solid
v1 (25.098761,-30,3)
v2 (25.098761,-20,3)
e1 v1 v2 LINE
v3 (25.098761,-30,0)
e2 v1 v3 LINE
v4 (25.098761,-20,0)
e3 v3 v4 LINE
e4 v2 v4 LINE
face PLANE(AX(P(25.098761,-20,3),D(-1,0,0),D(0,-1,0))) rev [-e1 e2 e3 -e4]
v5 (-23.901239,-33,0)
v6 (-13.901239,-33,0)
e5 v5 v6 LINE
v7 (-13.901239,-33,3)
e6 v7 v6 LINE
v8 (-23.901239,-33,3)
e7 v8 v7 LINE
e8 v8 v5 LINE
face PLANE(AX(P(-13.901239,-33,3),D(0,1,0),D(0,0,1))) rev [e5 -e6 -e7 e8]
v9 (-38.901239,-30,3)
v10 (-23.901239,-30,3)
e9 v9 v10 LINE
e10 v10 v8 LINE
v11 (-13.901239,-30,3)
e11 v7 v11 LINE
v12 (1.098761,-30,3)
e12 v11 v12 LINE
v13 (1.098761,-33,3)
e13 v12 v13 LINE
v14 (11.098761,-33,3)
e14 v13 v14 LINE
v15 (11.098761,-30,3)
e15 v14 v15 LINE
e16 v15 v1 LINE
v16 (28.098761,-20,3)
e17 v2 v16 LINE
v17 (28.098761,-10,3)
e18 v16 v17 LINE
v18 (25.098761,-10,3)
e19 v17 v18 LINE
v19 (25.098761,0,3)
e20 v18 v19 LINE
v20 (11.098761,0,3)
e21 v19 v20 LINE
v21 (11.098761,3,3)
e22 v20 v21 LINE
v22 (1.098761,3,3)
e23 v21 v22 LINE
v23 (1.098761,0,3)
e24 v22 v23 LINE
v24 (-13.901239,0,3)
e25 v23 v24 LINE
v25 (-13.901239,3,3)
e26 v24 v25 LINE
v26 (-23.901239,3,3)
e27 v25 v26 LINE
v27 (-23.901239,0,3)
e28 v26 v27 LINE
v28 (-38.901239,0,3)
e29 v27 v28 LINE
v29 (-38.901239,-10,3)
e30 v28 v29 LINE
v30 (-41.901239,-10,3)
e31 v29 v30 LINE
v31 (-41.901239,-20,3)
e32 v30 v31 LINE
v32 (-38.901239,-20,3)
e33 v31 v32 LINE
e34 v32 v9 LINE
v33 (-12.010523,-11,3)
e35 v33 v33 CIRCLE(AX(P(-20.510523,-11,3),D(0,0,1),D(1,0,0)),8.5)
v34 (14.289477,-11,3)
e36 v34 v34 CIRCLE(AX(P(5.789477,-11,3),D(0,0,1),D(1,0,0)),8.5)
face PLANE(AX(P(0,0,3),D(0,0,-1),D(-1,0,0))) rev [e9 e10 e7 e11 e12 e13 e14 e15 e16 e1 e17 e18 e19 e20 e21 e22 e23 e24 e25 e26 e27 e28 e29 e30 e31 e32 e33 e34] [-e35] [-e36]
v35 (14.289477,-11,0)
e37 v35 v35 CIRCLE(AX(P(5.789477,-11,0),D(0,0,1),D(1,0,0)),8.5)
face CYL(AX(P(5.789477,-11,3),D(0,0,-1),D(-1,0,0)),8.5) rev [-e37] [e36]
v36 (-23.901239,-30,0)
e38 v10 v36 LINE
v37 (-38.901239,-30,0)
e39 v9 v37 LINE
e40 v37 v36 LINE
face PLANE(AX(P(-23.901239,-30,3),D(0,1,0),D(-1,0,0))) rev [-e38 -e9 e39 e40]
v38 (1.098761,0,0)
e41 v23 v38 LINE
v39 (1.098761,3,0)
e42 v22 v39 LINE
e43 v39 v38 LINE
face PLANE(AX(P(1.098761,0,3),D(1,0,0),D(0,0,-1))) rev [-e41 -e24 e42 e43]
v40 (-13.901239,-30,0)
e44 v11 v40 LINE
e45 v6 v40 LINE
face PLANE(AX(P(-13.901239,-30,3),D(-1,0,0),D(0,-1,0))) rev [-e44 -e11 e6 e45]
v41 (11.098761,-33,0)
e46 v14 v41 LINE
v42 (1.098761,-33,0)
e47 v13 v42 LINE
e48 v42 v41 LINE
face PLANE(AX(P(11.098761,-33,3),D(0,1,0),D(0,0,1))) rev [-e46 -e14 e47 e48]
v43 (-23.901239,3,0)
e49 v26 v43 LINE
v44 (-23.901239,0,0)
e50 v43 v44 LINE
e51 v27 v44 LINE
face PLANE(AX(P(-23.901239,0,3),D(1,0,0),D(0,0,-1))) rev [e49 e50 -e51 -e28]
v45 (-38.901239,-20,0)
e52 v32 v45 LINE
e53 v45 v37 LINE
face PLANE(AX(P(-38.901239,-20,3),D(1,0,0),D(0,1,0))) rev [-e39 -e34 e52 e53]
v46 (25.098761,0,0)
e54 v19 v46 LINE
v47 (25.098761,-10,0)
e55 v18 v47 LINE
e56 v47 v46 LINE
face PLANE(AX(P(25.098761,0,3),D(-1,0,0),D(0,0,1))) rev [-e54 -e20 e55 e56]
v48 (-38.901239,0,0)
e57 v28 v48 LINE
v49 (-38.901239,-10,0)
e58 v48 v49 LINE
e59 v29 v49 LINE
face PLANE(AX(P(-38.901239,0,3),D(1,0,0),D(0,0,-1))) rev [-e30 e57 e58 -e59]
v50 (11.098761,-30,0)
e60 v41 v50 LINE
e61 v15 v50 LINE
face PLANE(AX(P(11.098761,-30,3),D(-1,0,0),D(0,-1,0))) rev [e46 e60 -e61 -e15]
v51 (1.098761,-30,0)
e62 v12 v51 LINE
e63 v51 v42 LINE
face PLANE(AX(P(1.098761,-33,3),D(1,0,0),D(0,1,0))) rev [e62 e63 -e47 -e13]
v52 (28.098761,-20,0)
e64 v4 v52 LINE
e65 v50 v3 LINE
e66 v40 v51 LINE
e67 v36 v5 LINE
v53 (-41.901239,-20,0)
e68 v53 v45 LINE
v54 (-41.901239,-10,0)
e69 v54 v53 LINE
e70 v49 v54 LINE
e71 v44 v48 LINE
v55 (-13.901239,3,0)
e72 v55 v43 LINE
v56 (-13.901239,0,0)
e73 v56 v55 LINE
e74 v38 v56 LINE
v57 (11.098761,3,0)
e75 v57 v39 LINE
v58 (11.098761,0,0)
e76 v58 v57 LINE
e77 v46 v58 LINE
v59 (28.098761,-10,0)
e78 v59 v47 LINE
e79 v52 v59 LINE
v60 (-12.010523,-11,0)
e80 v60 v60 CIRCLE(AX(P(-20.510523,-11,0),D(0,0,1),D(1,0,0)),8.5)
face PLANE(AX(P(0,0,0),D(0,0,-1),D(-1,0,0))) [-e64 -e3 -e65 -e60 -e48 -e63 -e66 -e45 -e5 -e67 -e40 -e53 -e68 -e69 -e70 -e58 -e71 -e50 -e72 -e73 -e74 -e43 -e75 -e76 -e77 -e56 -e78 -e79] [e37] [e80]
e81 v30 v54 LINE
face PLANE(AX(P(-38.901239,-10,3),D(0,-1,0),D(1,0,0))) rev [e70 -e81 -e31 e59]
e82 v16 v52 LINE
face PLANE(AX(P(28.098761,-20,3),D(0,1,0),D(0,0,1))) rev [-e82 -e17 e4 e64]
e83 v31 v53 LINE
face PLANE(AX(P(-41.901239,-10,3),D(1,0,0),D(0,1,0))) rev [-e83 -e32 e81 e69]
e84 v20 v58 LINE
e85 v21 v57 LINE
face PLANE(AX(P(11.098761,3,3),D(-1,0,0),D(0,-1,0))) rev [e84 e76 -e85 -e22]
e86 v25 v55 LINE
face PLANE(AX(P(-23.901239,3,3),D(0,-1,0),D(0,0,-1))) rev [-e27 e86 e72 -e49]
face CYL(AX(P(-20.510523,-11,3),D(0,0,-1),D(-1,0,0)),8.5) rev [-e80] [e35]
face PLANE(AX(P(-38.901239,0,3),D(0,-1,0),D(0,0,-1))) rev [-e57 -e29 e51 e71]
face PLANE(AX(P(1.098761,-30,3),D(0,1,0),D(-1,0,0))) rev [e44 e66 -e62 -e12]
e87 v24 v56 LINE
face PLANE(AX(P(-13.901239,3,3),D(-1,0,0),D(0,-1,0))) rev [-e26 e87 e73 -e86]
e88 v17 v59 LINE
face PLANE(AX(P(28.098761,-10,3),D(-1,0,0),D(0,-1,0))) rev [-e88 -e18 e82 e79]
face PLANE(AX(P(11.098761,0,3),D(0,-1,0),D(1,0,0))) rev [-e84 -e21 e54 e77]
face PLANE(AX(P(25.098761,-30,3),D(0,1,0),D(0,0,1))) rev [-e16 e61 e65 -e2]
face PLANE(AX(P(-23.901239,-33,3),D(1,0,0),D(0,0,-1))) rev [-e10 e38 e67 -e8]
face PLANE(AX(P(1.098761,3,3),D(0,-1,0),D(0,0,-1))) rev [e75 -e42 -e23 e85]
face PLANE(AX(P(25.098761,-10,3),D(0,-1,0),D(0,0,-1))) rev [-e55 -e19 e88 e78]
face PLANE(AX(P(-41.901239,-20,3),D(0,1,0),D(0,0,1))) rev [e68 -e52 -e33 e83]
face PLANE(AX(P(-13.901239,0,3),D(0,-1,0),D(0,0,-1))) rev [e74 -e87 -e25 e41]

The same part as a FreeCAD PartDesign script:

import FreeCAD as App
import Part
import Sketcher
Q = App.Units.Quantity


def add_polygon(sketch, points):
    """Adds a closed chain of lines whose ends are joined by coincident constraints."""
    first, n = sketch.GeometryCount, len(points)
    for a, b in zip(points, points[1:] + points[:1]):
        sketch.addGeometry(Part.LineSegment(App.Vector(*a, 0), App.Vector(*b, 0)), False)
    for i in range(n):
        sketch.addConstraint(Sketcher.Constraint("Coincident", first + i, 2, first + (i + 1) % n, 1))

doc = App.newDocument("Part")
body = doc.addObject("PartDesign::Body", "Body")

# Sketch on XY plane
sketch1 = body.newObject("Sketcher::SketchObject", "Sketch")
sketch1.AttachmentSupport = (doc.getObject("XY_Plane"), [""])
sketch1.MapMode = "FlatFace"
add_polygon(sketch1, [(-23.9, 0), (-38.9, 0), (-38.9, -10), (-41.9, -10), (-41.9, -20), (-38.9, -20), (-38.9, -30), (-23.9, -30), (-23.9, -33), (-13.9, -33), (-13.9, -30), (1.1, -30), (1.1, -33), (11.1, -33), (11.1, -30), (25.1, -30), (25.1, -20), (28.1, -20), (28.1, -10), (25.1, -10), (25.1, 0), (11.1, 0), (11.1, 3), (1.1, 3), (1.1, 0), (-13.9, 0), (-13.9, 3), (-23.9, 3)])  # lines 0-27
sketch1.addGeometry(Part.Circle(App.Vector(5.8, -11, 0), App.Vector(0, 0, 1), 8.5), False)  # 28
sketch1.addGeometry(Part.Circle(App.Vector(-20.5, -11, 0), App.Vector(0, 0, 1), 8.5), False)  # 29
sketch1.addConstraint(Sketcher.Constraint("Horizontal", 0))
sketch1.addConstraint(Sketcher.Constraint("Vertical", 1))
sketch1.addConstraint(Sketcher.Constraint("Horizontal", 2))
sketch1.addConstraint(Sketcher.Constraint("Vertical", 3))
sketch1.addConstraint(Sketcher.Constraint("Horizontal", 4))
sketch1.addConstraint(Sketcher.Constraint("Vertical", 5))
sketch1.addConstraint(Sketcher.Constraint("Horizontal", 6))
sketch1.addConstraint(Sketcher.Constraint("Vertical", 7))
sketch1.addConstraint(Sketcher.Constraint("Horizontal", 8))
sketch1.addConstraint(Sketcher.Constraint("Vertical", 9))
sketch1.addConstraint(Sketcher.Constraint("Horizontal", 10))
sketch1.addConstraint(Sketcher.Constraint("Vertical", 11))
sketch1.addConstraint(Sketcher.Constraint("Horizontal", 12))
sketch1.addConstraint(Sketcher.Constraint("Vertical", 13))
sketch1.addConstraint(Sketcher.Constraint("Horizontal", 14))
sketch1.addConstraint(Sketcher.Constraint("Vertical", 15))
sketch1.addConstraint(Sketcher.Constraint("Horizontal", 16))
sketch1.addConstraint(Sketcher.Constraint("Vertical", 17))
sketch1.addConstraint(Sketcher.Constraint("Horizontal", 18))
sketch1.addConstraint(Sketcher.Constraint("Vertical", 19))
sketch1.addConstraint(Sketcher.Constraint("Horizontal", 20))
sketch1.addConstraint(Sketcher.Constraint("Vertical", 21))
sketch1.addConstraint(Sketcher.Constraint("Horizontal", 22))
sketch1.addConstraint(Sketcher.Constraint("Vertical", 23))
sketch1.addConstraint(Sketcher.Constraint("Horizontal", 24))
sketch1.addConstraint(Sketcher.Constraint("Vertical", 25))
sketch1.addConstraint(Sketcher.Constraint("Horizontal", 26))
sketch1.addConstraint(Sketcher.Constraint("Vertical", 27))
sketch1.addConstraint(Sketcher.Constraint("Equal", 28, 29))
sketch1.addConstraint(Sketcher.Constraint("PointOnObject", 0, 2, -1))
sketch1.addConstraint(Sketcher.Constraint("PointOnObject", 19, 2, -1))
sketch1.addConstraint(Sketcher.Constraint("PointOnObject", 23, 2, -1))
sketch1.addConstraint(Sketcher.Constraint("Horizontal", 28, 3, 29, 3))
sketch1.addConstraint(Sketcher.Constraint("Horizontal", 6, 2, 9, 2))
sketch1.addConstraint(Sketcher.Constraint("Horizontal", 8, 2, 11, 2))
sketch1.addConstraint(Sketcher.Constraint("Horizontal", 10, 2, 13, 2))
sketch1.addConstraint(Sketcher.Constraint("Horizontal", 4, 2, 15, 2))
sketch1.addConstraint(Sketcher.Constraint("Horizontal", 2, 2, 17, 2))
sketch1.addConstraint(Sketcher.Constraint("Horizontal", 22, 2, 25, 2))
sketch1.addConstraint(Sketcher.Constraint("Vertical", 1, 2, 4, 2))
sketch1.addConstraint(Sketcher.Constraint("Vertical", 15, 2, 18, 2))
sketch1.addConstraint(Sketcher.Constraint("Vertical", 13, 2, 20, 2))
sketch1.addConstraint(Sketcher.Constraint("Vertical", 11, 2, 22, 2))
sketch1.addConstraint(Sketcher.Constraint("Vertical", 9, 2, 24, 2))
sketch1.addConstraint(Sketcher.Constraint("Vertical", 7, 2, 26, 2))
sketch1.addConstraint(Sketcher.Constraint("Equal", 6, 10))
sketch1.addConstraint(Sketcher.Constraint("Equal", 8, 12))
sketch1.addConstraint(Sketcher.Constraint("Equal", 4, 16))
sketch1.addConstraint(Sketcher.Constraint("Equal", 26, 1))
sketch1.addConstraint(Sketcher.Constraint("Equal", 1, 3))
sketch1.addConstraint(Sketcher.Constraint("Equal", 3, 5))
sketch1.addConstraint(Sketcher.Constraint("Equal", 18, 7))
sketch1.addConstraint(Sketcher.Constraint("Equal", 13, 21))
sketch1.addConstraint(Sketcher.Constraint("Diameter", 28, Q("17 mm")))
sketch1.addConstraint(Sketcher.Constraint("DistanceX", 0, 2, 0, 1, Q("15 mm")))
sketch1.addConstraint(Sketcher.Constraint("DistanceX", 2, 2, 2, 1, Q("3 mm")))
sketch1.addConstraint(Sketcher.Constraint("DistanceX", 8, 1, 8, 2, Q("10 mm")))
sketch1.addConstraint(Sketcher.Constraint("DistanceX", 14, 1, 14, 2, Q("14 mm")))
sketch1.addConstraint(Sketcher.Constraint("DistanceY", 28, 3, -1, 1, Q("11 mm")))
sketch1.addConstraint(Sketcher.Constraint("DistanceX", 29, 3, 28, 3, Q("26.3 mm")))
sketch1.addConstraint(Sketcher.Constraint("DistanceX", 0, 2, -1, 1, Q("38.901239 mm")))
sketch1.addConstraint(Sketcher.Constraint("DistanceX", -1, 1, 28, 3, Q("5.789477 mm")))
pad1 = body.newObject("PartDesign::Pad", "Pad")
pad1.Profile = sketch1
pad1.Length = 3

doc.recompute()
